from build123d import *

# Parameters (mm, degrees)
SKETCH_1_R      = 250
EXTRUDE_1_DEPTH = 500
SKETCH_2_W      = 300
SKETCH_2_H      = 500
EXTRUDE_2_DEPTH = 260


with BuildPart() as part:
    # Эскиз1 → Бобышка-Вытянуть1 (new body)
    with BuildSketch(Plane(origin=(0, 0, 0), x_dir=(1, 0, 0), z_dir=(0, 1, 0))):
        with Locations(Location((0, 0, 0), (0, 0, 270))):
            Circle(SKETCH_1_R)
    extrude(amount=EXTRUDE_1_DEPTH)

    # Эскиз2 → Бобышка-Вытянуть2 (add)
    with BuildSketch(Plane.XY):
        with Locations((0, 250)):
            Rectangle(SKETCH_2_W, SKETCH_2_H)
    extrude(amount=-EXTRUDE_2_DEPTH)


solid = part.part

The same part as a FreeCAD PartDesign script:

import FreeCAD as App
import Part
import Sketcher
from FreeCAD import Vector

doc = App.newDocument("Part")
body = doc.addObject("PartDesign::Body", "Body")

# Sketch on XZ plane
sketch1 = doc.addObject("Sketcher::SketchObject", "Sketch")
body.addObject(sketch1)
sketch1.AttachmentSupport = (doc.XZ_Plane, [""])
sketch1.MapMode = "FlatFace"
sketch1.addGeometry(Part.Circle(Vector(0, 0, 0), Vector(0, 0, 1), 250), False)
sketch1.addConstraint(Sketcher.Constraint("Coincident", 0, 3, -1, 1))
sketch1.addConstraint(Sketcher.Constraint("Diameter", 0, 500.0))
pad1 = doc.addObject("PartDesign::Pad", "Pad")
body.addObject(pad1)
pad1.Profile = sketch1
pad1.Length = 500
pad1.Reversed = True

# Sketch on XY plane
sketch2 = doc.addObject("Sketcher::SketchObject", "Sketch001")
body.addObject(sketch2)
sketch2.AttachmentSupport = (doc.XY_Plane, [""])
sketch2.MapMode = "FlatFace"
sketch2.addGeometry(Part.LineSegment(Vector(-150, 500, 0), Vector(-150, 0, 0)), False)
sketch2.addGeometry(Part.LineSegment(Vector(-150, 0, 0), Vector(150, 0, 0)), False)
sketch2.addGeometry(Part.LineSegment(Vector(150, 0, 0), Vector(150, 500, 0)), False)
sketch2.addGeometry(Part.LineSegment(Vector(150, 500, 0), Vector(-150, 500, 0)), False)
sketch2.addConstraint(Sketcher.Constraint("Coincident", 0, 2, 1, 1))
sketch2.addConstraint(Sketcher.Constraint("Coincident", 1, 2, 2, 1))
sketch2.addConstraint(Sketcher.Constraint("Coincident", 2, 2, 3, 1))
sketch2.addConstraint(Sketcher.Constraint("Coincident", 3, 2, 0, 1))
sketch2.addConstraint(Sketcher.Constraint("Vertical", 0))
sketch2.addConstraint(Sketcher.Constraint("Horizontal", 1))
sketch2.addConstraint(Sketcher.Constraint("Vertical", 2))
sketch2.addConstraint(Sketcher.Constraint("Horizontal", 3))
sketch2.addConstraint(Sketcher.Constraint("Symmetric", 0, 2, 1, 2, -1, 1))
sketch2.addConstraint(Sketcher.Constraint("DistanceX", 1, 1, 1, 2, 300.0))
sketch2.addConstraint(Sketcher.Constraint("DistanceY", 0, 2, 0, 1, 500.0))
pad2 = doc.addObject("PartDesign::Pad", "Pad001")
body.addObject(pad2)
pad2.Profile = sketch2
pad2.Length = 260
pad2.Reversed = True

doc.recompute()
